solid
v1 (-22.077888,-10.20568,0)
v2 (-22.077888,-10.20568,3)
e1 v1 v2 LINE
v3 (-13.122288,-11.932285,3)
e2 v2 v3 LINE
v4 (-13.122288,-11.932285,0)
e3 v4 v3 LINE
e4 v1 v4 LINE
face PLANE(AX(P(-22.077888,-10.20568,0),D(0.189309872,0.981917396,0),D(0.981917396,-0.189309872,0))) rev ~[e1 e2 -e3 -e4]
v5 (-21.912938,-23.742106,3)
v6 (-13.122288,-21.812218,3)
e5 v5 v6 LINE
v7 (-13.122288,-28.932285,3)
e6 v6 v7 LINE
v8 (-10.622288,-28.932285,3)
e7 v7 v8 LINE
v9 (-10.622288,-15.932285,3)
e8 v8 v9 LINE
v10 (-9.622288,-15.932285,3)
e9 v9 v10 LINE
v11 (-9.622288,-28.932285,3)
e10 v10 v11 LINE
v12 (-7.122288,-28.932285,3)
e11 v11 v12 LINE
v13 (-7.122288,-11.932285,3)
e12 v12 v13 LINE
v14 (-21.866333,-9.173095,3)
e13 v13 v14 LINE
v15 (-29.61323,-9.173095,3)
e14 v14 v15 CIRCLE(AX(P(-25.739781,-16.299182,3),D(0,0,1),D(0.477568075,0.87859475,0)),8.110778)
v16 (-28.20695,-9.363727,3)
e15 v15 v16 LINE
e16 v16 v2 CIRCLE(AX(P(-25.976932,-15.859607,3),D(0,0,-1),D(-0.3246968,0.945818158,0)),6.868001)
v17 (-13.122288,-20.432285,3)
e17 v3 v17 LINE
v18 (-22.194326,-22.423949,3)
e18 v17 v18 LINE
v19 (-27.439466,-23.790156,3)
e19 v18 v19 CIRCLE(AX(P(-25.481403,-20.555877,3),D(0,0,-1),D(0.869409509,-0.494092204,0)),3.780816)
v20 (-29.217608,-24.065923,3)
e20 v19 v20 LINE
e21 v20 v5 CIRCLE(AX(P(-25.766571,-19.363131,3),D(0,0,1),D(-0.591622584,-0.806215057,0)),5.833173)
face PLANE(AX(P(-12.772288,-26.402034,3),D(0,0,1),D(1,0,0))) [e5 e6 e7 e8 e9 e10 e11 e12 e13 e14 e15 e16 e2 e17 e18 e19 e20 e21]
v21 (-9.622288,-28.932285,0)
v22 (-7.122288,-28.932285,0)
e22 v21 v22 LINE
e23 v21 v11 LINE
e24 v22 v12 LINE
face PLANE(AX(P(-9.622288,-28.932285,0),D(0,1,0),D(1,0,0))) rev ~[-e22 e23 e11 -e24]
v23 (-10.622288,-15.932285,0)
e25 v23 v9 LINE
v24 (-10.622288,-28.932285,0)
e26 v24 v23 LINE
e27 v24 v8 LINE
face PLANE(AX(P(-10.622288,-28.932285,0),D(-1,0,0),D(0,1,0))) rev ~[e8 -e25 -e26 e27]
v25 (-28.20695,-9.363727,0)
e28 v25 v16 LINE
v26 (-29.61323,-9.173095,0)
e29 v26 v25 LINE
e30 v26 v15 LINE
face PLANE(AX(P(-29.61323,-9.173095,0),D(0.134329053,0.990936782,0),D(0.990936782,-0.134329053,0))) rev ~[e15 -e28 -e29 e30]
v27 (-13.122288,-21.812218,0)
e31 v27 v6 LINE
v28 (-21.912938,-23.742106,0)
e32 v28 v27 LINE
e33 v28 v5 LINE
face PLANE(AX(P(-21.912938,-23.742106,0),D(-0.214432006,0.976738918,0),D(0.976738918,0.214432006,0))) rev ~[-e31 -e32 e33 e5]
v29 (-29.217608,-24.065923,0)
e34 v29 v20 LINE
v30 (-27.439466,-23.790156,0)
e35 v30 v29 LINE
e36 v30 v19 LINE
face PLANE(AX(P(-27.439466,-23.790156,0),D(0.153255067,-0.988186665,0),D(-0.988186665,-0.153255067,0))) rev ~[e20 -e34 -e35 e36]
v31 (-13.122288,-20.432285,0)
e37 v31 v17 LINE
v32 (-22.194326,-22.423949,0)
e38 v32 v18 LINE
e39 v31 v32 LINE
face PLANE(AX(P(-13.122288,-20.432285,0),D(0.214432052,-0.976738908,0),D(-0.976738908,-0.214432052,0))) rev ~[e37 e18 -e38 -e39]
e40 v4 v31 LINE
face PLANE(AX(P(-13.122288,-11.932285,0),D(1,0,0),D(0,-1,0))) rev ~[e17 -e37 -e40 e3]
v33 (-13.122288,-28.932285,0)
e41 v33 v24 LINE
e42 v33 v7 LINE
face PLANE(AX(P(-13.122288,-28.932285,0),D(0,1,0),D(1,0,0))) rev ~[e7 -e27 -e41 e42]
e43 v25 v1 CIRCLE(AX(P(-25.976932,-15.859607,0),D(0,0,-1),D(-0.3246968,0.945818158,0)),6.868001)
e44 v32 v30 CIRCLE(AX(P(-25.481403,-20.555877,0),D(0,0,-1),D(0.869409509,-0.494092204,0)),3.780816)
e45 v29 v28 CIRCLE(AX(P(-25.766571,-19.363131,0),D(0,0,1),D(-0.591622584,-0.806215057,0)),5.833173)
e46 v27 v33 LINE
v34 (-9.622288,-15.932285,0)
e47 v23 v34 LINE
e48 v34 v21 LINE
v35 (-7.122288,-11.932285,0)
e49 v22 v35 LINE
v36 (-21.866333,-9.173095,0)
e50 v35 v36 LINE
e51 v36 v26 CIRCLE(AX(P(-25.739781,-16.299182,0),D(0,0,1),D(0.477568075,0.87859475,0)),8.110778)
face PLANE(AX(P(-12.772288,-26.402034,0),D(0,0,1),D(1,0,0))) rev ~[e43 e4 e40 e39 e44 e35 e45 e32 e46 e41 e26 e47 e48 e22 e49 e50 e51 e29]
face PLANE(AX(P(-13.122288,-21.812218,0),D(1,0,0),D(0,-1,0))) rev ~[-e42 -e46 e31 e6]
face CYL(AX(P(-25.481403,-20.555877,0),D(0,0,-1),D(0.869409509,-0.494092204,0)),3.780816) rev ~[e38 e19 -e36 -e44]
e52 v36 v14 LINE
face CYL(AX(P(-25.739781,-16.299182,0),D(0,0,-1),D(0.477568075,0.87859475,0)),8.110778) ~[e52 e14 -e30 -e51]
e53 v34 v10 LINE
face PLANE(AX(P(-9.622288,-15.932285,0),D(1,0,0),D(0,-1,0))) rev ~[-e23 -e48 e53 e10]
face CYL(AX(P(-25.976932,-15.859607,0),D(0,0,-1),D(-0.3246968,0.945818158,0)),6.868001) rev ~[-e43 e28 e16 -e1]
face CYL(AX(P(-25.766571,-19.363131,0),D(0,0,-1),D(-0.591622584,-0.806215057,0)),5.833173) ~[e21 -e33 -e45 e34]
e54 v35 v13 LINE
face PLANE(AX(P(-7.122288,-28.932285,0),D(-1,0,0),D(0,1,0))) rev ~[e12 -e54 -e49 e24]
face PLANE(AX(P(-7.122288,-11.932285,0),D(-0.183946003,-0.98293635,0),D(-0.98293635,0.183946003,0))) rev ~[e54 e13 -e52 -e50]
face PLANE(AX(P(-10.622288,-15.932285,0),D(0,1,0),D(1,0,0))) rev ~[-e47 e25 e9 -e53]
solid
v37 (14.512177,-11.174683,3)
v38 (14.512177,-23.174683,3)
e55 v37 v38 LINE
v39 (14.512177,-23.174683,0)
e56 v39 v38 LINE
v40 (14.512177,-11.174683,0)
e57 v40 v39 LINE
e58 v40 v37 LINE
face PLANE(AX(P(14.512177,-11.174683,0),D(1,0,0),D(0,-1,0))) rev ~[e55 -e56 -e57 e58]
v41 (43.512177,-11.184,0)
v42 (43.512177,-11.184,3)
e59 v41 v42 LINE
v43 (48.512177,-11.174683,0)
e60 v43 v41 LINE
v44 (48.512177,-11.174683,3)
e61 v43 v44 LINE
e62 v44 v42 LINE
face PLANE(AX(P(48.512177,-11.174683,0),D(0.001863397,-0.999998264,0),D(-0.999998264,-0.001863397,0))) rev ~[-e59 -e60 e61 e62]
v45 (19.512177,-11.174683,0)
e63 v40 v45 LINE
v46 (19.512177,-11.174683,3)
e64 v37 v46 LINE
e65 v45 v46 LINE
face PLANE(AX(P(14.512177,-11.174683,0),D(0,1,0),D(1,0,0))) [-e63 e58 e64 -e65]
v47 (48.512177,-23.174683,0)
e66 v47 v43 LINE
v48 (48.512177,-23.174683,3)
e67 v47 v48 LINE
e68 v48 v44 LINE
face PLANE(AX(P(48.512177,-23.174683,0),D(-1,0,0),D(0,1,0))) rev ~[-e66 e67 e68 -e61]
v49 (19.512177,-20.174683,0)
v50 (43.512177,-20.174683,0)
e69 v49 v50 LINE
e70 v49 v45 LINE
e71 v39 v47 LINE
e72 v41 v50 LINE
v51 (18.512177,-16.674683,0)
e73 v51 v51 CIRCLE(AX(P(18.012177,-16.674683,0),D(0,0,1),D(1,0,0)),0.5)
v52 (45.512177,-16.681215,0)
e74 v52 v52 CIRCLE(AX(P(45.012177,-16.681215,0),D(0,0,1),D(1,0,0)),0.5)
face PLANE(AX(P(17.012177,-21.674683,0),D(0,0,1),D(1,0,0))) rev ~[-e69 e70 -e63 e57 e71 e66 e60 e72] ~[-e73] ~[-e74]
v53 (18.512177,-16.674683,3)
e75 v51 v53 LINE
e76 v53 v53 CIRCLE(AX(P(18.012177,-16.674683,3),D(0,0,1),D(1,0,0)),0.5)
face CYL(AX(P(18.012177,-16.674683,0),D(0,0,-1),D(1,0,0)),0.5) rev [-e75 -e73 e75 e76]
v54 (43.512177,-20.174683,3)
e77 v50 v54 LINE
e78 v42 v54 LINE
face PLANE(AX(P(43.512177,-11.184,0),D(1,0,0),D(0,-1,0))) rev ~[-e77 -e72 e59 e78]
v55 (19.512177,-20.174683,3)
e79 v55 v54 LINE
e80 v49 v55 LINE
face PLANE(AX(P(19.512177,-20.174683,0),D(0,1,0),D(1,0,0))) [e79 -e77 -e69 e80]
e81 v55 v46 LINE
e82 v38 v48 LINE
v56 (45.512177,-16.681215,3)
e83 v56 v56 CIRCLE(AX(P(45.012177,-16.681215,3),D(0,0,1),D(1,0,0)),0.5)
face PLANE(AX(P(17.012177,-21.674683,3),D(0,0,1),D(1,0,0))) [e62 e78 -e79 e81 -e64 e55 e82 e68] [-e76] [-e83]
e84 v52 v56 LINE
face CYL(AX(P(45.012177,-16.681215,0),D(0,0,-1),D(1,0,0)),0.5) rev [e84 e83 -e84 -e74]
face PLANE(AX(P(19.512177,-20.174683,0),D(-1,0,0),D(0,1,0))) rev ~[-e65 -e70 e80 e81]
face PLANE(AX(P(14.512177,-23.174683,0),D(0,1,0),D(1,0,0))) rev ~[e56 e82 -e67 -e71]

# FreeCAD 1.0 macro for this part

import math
import FreeCAD as App
import Part
import Sketcher

V = App.Vector


def add_polygon(sketch, points):
    """Adds a closed chain of lines whose ends are joined by coincident constraints."""
    first, n = sketch.GeometryCount, len(points)
    for a, b in zip(points, points[1:] + points[:1]):
        sketch.addGeometry(Part.LineSegment(App.Vector(*a, 0), App.Vector(*b, 0)), False)
    for i in range(n):
        sketch.addConstraint(Sketcher.Constraint("Coincident", first + i, 2, first + (i + 1) % n, 1))

doc = App.newDocument("Part")
params = doc.addObject("Spreadsheet::Sheet", "Params")
for row, (alias, value) in enumerate([
    ("sketch1_diameter", "1 mm"),
    ("sketch1_width", "34 mm"),
    ("sketch1_width2", "24 mm"),
    ("sketch1_width3", "5 mm"),
    ("sketch1_height", "12 mm"),
    ("pad1_length", "3 mm"),
    ("sketch2_width", "1 mm"),
    ("sketch2_height", "13 mm"),
    ("sketch2_height2", "17 mm"),
    ("sketch2_length", "15 mm"),
    ("sketch2_length2", "9 mm"),
    ("pad2_length", "3 mm"),
], start=1):
    params.set(f"A{row}", alias)
    params.set(f"B{row}", "=" + value)
    params.setAlias(f"B{row}", alias)

body = doc.addObject("PartDesign::Body", "Body")

# Sketch on XY plane
sketch1 = body.newObject("Sketcher::SketchObject", "Sketch")
sketch1.AttachmentSupport = (doc.getObject("XY_Plane"), [""])
sketch1.MapMode = "FlatFace"
add_polygon(sketch1, [(14.5, -23.2), (48.5, -23.2), (48.5, -11.2), (43.5, -11.2), (43.5, -20.2), (19.5, -20.2), (19.5, -11.2), (14.5, -11.2)])  # lines 0-7
sketch1.addGeometry(Part.Circle(V(18, -16.7, 0), V(0, 0, 1), 0.5), False)  # 8
sketch1.addGeometry(Part.Circle(V(45, -16.7, 0), V(0, 0, 1), 0.5), False)  # 9
sketch1.addConstraint([
    Sketcher.Constraint("Horizontal", 0),
    Sketcher.Constraint("Vertical", 1),
    Sketcher.Constraint("Vertical", 3),
    Sketcher.Constraint("Horizontal", 4),
    Sketcher.Constraint("Vertical", 5),
    Sketcher.Constraint("Horizontal", 6),
    Sketcher.Constraint("Vertical", 7),
    Sketcher.Constraint("Equal", 8, 9),
    Sketcher.Constraint("Horizontal", 1, 2, 5, 2),
    Sketcher.Constraint("Diameter", 8, 1.0),
    Sketcher.Constraint("DistanceX", 0, 1, 0, 2, 34.0),
    Sketcher.Constraint("DistanceX", 4, 2, 4, 1, 24.0),
    Sketcher.Constraint("DistanceX", 6, 2, 6, 1, 5.0),
    Sketcher.Constraint("DistanceY", 1, 1, 1, 2, 12.0),
    Sketcher.Constraint("DistanceY", 5, 1, 5, 2, 9.0),
    Sketcher.Constraint("DistanceX", 8, 3, 9, 3, 27.0),
    Sketcher.Constraint("DistanceX", 9, 3, 0, 2, 3.5),
    Sketcher.Constraint("DistanceY", 0, 2, 8, 3, 6.5),
    Sketcher.Constraint("DistanceY", 2, 2, -1, 1, 11.184),
    Sketcher.Constraint("DistanceY", 3, 2, 3, 1, 8.990683),
    Sketcher.Constraint("DistanceY", 9, 3, 8, 3, 0.006532),
    Sketcher.Constraint("DistanceX", -1, 1, 8, 3, 18.012177),
])
sketch1.setExpression("Constraints[17]", "Params.sketch1_diameter")
sketch1.setExpression("Constraints[18]", "Params.sketch1_width")
sketch1.setExpression("Constraints[19]", "Params.sketch1_width2")
sketch1.setExpression("Constraints[20]", "Params.sketch1_width3")
sketch1.setExpression("Constraints[21]", "Params.sketch1_height")
pad1 = body.newObject("PartDesign::Pad", "Pad")
pad1.Profile = sketch1
pad1.setExpression("Length", "Params.pad1_length")
body2 = doc.addObject("PartDesign::Body", "Body001")

# Sketch on XY plane
sketch2 = body2.newObject("Sketcher::SketchObject", "Sketch001")
sketch2.AttachmentSupport = (doc.getObject("XY_Plane001"), [""])
sketch2.MapMode = "FlatFace"
sketch2.addGeometry([
    Part.LineSegment(V(-13.1, -28.9, 0), V(-10.6, -28.9, 0)),  # 0
    Part.LineSegment(V(-10.6, -28.9, 0), V(-10.6, -15.9, 0)),  # 1
    Part.LineSegment(V(-10.6, -15.9, 0), V(-9.6, -15.9, 0)),  # 2
    Part.LineSegment(V(-9.6, -15.9, 0), V(-9.6, -28.9, 0)),  # 3
    Part.LineSegment(V(-9.6, -28.9, 0), V(-7.1, -28.9, 0)),  # 4
    Part.LineSegment(V(-7.1, -28.9, 0), V(-7.1, -11.9, 0)),  # 5
    Part.LineSegment(V(-7.1, -11.9, 0), V(-21.9, -9.2, 0)),  # 6
    Part.ArcOfCircle(Part.Circle(V(-25.7, -16.3, 0), V(0, 0, 1), 8.1), math.radians(61), math.radians(119)),  # 7
    Part.LineSegment(V(-29.6, -9.2, 0), V(-28.2, -9.4, 0)),  # 8
    Part.ArcOfCircle(Part.Circle(V(-26, -15.9, 0), V(0, 0, 1), 6.9), math.radians(55), math.radians(109)),  # 9
    Part.LineSegment(V(-22.1, -10.2, 0), V(-13.1, -11.9, 0)),  # 10
    Part.LineSegment(V(-13.1, -11.9, 0), V(-13.1, -20.4, 0)),  # 11
    Part.LineSegment(V(-13.1, -20.4, 0), V(-22.2, -22.4, 0)),  # 12
    Part.ArcOfCircle(Part.Circle(V(-25.5, -20.6, 0), V(0, 0, 1), 3.8), math.radians(-121), math.radians(-30)),  # 13
    Part.LineSegment(V(-27.4, -23.8, 0), V(-29.2, -24.1, 0)),  # 14
    Part.ArcOfCircle(Part.Circle(V(-25.8, -19.4, 0), V(0, 0, 1), 5.8), math.radians(-126), math.radians(-49)),  # 15
    Part.LineSegment(V(-21.9, -23.7, 0), V(-13.1, -21.8, 0)),  # 16
    Part.LineSegment(V(-13.1, -21.8, 0), V(-13.1, -28.9, 0)),  # 17
], False)
sketch2.addConstraint([
    Sketcher.Constraint("Coincident", 0, 2, 1, 1),
    Sketcher.Constraint("Coincident", 1, 2, 2, 1),
    Sketcher.Constraint("Coincident", 2, 2, 3, 1),
    Sketcher.Constraint("Coincident", 3, 2, 4, 1),
    Sketcher.Constraint("Coincident", 4, 2, 5, 1),
    Sketcher.Constraint("Coincident", 5, 2, 6, 1),
    Sketcher.Constraint("Coincident", 6, 2, 7, 1),
    Sketcher.Constraint("Coincident", 7, 2, 8, 1),
    Sketcher.Constraint("Coincident", 8, 2, 9, 2),
    Sketcher.Constraint("Coincident", 9, 1, 10, 1),
    Sketcher.Constraint("Coincident", 10, 2, 11, 1),
    Sketcher.Constraint("Coincident", 11, 2, 12, 1),
    Sketcher.Constraint("Coincident", 12, 2, 13, 2),
    Sketcher.Constraint("Coincident", 13, 1, 14, 1),
    Sketcher.Constraint("Coincident", 14, 2, 15, 1),
    Sketcher.Constraint("Coincident", 15, 2, 16, 1),
    Sketcher.Constraint("Coincident", 16, 2, 17, 1),
    Sketcher.Constraint("Coincident", 17, 2, 0, 1),
    Sketcher.Constraint("Horizontal", 0),
    Sketcher.Constraint("Vertical", 1),
    Sketcher.Constraint("Horizontal", 2),
    Sketcher.Constraint("Vertical", 3),
    Sketcher.Constraint("Horizontal", 4),
    Sketcher.Constraint("Vertical", 5),
    Sketcher.Constraint("Vertical", 11),
    Sketcher.Constraint("Vertical", 17),
    Sketcher.Constraint("Parallel", 12, 16),
    Sketcher.Constraint("Horizontal", 0, 2, 3, 2),
    Sketcher.Constraint("Horizontal", 6, 2, 7, 2),
    Sketcher.Constraint("Horizontal", 5, 2, 10, 2),
    Sketcher.Constraint("Vertical", 11, 2, 16, 2),
    Sketcher.Constraint("Equal", 0, 4),
    Sketcher.Constraint("DistanceX", 2, 1, 2, 2, 1.0),
    Sketcher.Constraint("DistanceY", 1, 1, 1, 2, 13.0),
    Sketcher.Constraint("DistanceY", 5, 1, 5, 2, 17.0),
    Sketcher.Constraint("Distance", 6, 15.0),
    Sketcher.Constraint("Distance", 16, 9.0),
    Sketcher.Constraint("DistanceX", 0, 1, 0, 2, 2.5),
    Sketcher.Constraint("DistanceY", 11, 2, 11, 1, 8.5),
    Sketcher.Constraint("Radius", 9, 6.868001),
    Sketcher.Constraint("Radius", 7, 8.110778),
    Sketcher.Constraint("Radius", 13, 3.780816),
    Sketcher.Constraint("Radius", 15, 5.833173),
    Sketcher.Constraint("Distance", 14, 1.799399),
    Sketcher.Constraint("DistanceX", 9, 3, 6, 2, 4.110599),
    Sketcher.Constraint("DistanceY", 7, 3, 9, 1, 6.093502),
    Sketcher.Constraint("DistanceX", 9, 1, 10, 2, 8.9556),
    Sketcher.Constraint("Distance", 8, 1.419142),
    Sketcher.Constraint("Distance", 12, 9.288089),
    Sketcher.Constraint("DistanceY", 17, 2, 17, 1, 7.120067),
    Sketcher.Constraint("DistanceX", 7, 3, -1, 1, 25.739781),
    Sketcher.Constraint("DistanceY", 7, 3, -1, 1, 16.299182),
    Sketcher.Constraint("DistanceX", 15, 3, -1, 1, 25.766571),
    Sketcher.Constraint("DistanceY", 15, 3, -1, 1, 19.363131),
    Sketcher.Constraint("DistanceX", 4, 2, -1, 1, 7.122288),
    Sketcher.Constraint("DistanceX", 7, 2, -1, 1, 29.61323),
    Sketcher.Constraint("DistanceX", 7, 3, 13, 3, 0.258378),
    Sketcher.Constraint("DistanceY", 13, 1, 13, 3, 3.234279),
])
sketch2.setExpression("Constraints[32]", "Params.sketch2_width")
sketch2.setExpression("Constraints[33]", "Params.sketch2_height")
sketch2.setExpression("Constraints[34]", "Params.sketch2_height2")
sketch2.setExpression("Constraints[35]", "Params.sketch2_length")
sketch2.setExpression("Constraints[36]", "Params.sketch2_length2")
pad2 = body2.newObject("PartDesign::Pad", "Pad001")
pad2.Profile = sketch2
pad2.setExpression("Length", "Params.pad2_length")

doc.recompute()
